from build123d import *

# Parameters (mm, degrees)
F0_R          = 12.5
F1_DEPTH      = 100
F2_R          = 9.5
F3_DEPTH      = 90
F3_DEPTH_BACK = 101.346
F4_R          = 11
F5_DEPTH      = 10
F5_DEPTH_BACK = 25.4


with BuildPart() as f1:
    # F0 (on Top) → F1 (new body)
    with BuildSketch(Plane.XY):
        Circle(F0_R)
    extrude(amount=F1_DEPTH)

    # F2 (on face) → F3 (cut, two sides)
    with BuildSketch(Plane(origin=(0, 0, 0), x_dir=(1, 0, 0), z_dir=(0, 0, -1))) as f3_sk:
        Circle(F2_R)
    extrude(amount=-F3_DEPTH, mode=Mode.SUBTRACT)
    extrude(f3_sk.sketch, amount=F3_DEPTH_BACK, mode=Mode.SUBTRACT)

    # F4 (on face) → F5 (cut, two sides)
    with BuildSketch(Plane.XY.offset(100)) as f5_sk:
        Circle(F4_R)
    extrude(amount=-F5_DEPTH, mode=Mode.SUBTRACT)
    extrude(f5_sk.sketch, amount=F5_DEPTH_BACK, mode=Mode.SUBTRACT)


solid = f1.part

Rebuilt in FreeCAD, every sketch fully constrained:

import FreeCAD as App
import Part
import Sketcher

V = App.Vector
Q = App.Units.Quantity

doc = App.newDocument("Part")
body = doc.addObject("PartDesign::Body", "Body")

# Sketch on XY plane
sketch1 = doc.addObject("Sketcher::SketchObject", "Sketch")
body.addObject(sketch1)
sketch1.AttachmentSupport = (doc.XY_Plane, [""])
sketch1.MapMode = "FlatFace"
sketch1.addGeometry(Part.Circle(V(0, 0, 0), V(0, 0, 1), 12), False)
sketch1.addConstraint(Sketcher.Constraint("Coincident", 0, 3, -1, 1))
sketch1.addConstraint(Sketcher.Constraint("Diameter", 0, Q("25 mm")))
pad1 = doc.addObject("PartDesign::Pad", "Pad")
body.addObject(pad1)
pad1.Profile = sketch1
pad1.Length = 100

# Sketch on XY plane
sketch2 = doc.addObject("Sketcher::SketchObject", "Sketch001")
body.addObject(sketch2)
sketch2.AttachmentSupport = (doc.XY_Plane, [""])
sketch2.MapMode = "FlatFace"
sketch2.addGeometry(Part.Circle(V(0, 0, 0), V(0, 0, 1), 10), False)
sketch2.addConstraint(Sketcher.Constraint("Coincident", 0, 3, -1, 1))
sketch2.addConstraint(Sketcher.Constraint("Diameter", 0, Q("19 mm")))
pocket1 = doc.addObject("PartDesign::Pocket", "Pocket")
body.addObject(pocket1)
pocket1.Profile = sketch2
pocket1.Type = "TwoLengths"
pocket1.Length = 90
pocket1.Length2 = 101.346
pocket1.Reversed = True

# Sketch on XY plane
sketch3 = doc.addObject("Sketcher::SketchObject", "Sketch002")
body.addObject(sketch3)
sketch3.AttachmentSupport = (doc.XY_Plane, [""])
sketch3.MapMode = "FlatFace"
sketch3.AttachmentOffset = App.Placement(V(0, 0, 100), App.Rotation())
sketch3.addGeometry(Part.Circle(V(0, 0, 0), V(0, 0, 1), 11), False)
sketch3.addConstraint(Sketcher.Constraint("Coincident", 0, 3, -1, 1))
sketch3.addConstraint(Sketcher.Constraint("Diameter", 0, Q("22 mm")))
pocket2 = doc.addObject("PartDesign::Pocket", "Pocket001")
body.addObject(pocket2)
pocket2.Profile = sketch3
pocket2.Type = "TwoLengths"
pocket2.Length = 10
pocket2.Length2 = 25.4

doc.recompute()
